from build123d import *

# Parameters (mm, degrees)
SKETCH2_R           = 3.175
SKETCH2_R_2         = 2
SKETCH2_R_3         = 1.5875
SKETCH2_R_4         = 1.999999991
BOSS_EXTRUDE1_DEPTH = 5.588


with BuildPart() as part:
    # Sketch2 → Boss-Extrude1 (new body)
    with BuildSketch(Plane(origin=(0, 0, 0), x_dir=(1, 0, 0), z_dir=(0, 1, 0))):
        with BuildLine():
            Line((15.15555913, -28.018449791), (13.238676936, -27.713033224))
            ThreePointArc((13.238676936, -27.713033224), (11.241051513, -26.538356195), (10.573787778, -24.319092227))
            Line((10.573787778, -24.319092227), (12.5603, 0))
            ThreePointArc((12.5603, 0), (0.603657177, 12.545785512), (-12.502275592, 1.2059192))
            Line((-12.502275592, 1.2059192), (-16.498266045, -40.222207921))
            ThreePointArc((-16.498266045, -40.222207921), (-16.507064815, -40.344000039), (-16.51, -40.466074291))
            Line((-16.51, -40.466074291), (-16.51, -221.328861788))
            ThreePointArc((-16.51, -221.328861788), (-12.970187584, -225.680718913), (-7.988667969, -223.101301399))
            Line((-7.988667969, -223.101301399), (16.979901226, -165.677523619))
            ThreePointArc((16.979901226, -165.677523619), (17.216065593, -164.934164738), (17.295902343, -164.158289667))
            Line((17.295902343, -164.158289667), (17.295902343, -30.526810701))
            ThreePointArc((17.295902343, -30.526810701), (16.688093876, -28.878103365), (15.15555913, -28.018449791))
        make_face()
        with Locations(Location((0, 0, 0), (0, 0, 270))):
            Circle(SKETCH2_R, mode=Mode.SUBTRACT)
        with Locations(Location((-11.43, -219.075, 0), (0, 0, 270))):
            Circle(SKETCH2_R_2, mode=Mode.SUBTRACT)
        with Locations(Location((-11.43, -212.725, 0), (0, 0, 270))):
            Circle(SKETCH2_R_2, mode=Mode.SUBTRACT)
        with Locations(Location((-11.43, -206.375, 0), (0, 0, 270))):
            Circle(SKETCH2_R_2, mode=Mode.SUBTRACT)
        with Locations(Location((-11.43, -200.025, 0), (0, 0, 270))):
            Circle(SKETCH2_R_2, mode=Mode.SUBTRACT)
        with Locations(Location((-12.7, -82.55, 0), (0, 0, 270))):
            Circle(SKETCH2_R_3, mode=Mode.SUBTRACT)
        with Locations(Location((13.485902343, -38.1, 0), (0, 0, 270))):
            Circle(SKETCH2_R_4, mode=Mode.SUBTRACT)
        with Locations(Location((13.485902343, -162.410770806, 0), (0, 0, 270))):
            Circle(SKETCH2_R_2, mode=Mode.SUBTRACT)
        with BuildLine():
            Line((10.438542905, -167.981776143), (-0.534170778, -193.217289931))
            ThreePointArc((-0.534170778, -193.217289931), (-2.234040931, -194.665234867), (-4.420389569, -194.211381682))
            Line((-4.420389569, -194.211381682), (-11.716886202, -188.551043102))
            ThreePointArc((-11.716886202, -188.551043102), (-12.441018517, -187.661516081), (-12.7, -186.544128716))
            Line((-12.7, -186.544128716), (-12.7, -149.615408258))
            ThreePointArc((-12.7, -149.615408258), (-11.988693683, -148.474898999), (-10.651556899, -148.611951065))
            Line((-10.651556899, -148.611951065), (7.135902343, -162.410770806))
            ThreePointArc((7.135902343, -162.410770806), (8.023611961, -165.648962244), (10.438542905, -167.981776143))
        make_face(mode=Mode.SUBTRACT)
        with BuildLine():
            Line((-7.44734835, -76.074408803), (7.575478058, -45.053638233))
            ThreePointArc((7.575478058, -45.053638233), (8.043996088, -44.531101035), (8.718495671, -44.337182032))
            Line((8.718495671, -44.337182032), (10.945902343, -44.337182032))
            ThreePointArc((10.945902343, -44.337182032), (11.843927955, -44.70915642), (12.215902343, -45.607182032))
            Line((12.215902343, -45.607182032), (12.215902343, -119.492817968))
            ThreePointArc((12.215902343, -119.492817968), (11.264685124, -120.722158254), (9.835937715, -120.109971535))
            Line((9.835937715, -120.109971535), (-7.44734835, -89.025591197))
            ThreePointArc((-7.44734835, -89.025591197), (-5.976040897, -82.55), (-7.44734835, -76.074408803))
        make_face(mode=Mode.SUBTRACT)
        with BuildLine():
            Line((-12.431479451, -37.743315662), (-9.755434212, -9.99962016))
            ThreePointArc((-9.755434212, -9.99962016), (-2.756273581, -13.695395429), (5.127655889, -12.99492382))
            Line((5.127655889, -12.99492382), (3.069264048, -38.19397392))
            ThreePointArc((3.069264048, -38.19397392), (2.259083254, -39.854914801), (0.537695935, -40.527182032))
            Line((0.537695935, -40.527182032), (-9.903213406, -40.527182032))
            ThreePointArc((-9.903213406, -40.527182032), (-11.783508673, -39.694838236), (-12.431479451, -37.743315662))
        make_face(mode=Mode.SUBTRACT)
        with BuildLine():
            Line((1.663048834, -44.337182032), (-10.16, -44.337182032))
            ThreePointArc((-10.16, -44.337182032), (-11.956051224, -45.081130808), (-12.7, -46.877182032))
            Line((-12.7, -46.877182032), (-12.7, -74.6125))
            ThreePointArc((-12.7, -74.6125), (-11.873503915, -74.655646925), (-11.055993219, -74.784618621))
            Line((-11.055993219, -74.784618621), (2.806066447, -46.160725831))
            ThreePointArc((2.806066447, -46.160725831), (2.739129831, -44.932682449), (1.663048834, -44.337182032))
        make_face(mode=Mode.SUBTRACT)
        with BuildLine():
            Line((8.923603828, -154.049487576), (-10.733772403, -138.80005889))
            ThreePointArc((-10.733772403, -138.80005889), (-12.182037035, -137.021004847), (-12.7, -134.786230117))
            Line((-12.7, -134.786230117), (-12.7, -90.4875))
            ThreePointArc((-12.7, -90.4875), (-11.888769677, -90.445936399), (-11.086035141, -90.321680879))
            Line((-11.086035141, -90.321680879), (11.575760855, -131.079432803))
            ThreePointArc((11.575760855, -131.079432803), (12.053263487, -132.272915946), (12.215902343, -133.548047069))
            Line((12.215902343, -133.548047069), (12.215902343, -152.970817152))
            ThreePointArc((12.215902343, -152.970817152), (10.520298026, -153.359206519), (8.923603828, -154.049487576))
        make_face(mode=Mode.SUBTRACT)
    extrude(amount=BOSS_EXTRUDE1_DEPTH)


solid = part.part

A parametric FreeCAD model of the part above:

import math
import FreeCAD as App
import Part
import Sketcher

V = App.Vector
Q = App.Units.Quantity

doc = App.newDocument("Part")
params = doc.addObject("Spreadsheet::Sheet", "Params")
for row, (alias, value) in enumerate([
    ("sketch1_radius", "0.1 in"),
    ("sketch1_radius2", "0.2 in"),
    ("sketch1_diameter", "0.25 in"),
    ("sketch1_radius3", "0.15 in"),
    ("sketch1_radius4", "0.25 in"),
    ("pad1_length", "0.22 in"),
], start=1):
    params.set(f"A{row}", alias)
    params.set(f"B{row}", "=" + value)
    params.setAlias(f"B{row}", alias)

body = doc.addObject("PartDesign::Body", "Body")

sketch1 = body.newObject("Sketcher::SketchObject", "Sketch")
sketch1.AttachmentSupport = (doc.getObject("XZ_Plane"), [""])
sketch1.MapMode = "FlatFace"
sketch1.addGeometry(Part.LineSegment(V(15.16, 28.02, 0), V(13.24, 27.71, 0)), False)
sketch1.addGeometry(Part.ArcOfCircle(Part.Circle(V(13.74, 24.58, 0), V(0, 0, 1), 3.18), math.radians(99), math.radians(185)), False)
sketch1.addGeometry(Part.LineSegment(V(10.57, 24.32, 0), V(12.56, 0, 0)), False)
sketch1.addGeometry(Part.ArcOfCircle(Part.Circle(V(0, 0, 0), V(0, 0, 1), 12.56), math.radians(-174), math.radians(0)), False)
sketch1.addGeometry(Part.LineSegment(V(-12.5, -1.21, 0), V(-16.5, 40.22, 0)), False)
sketch1.addGeometry(Part.ArcOfCircle(Part.Circle(V(-13.97, 40.47, 0), V(0, 0, 1), 2.54), math.radians(-180), math.radians(-174.49)), False)
sketch1.addGeometry(Part.LineSegment(V(-16.51, 40.47, 0), V(-16.51, 221.33, 0)), False)
sketch1.addGeometry(Part.ArcOfCircle(Part.Circle(V(-12.06, 221.33, 0), V(0, 0, 1), 4.45), math.radians(23), math.radians(180)), False)
sketch1.addGeometry(Part.LineSegment(V(-7.99, 223.1, 0), V(16.98, 165.68, 0)), False)
sketch1.addGeometry(Part.ArcOfCircle(Part.Circle(V(13.49, 164.16, 0), V(0, 0, 1), 3.81), math.radians(0), math.radians(24)), False)
sketch1.addGeometry(Part.LineSegment(V(17.3, 164.16, 0), V(17.3, 30.53, 0)), False)
sketch1.addGeometry(Part.ArcOfCircle(Part.Circle(V(14.76, 30.53, 0), V(0, 0, 1), 2.54), math.radians(-81), math.radians(0)), False)
sketch1.addGeometry(Part.Circle(V(-11.43, 219.07, 0), V(0, 0, 1), 2), False)
sketch1.addGeometry(Part.Circle(V(-11.43, 212.72, 0), V(0, 0, 1), 2), False)
sketch1.addGeometry(Part.Circle(V(-11.43, 206.38, 0), V(0, 0, 1), 2), False)
sketch1.addGeometry(Part.Circle(V(-11.43, 200.03, 0), V(0, 0, 1), 2), False)
sketch1.addGeometry(Part.ArcOfCircle(Part.Circle(V(13.49, 162.41, 0), V(0, 0, 1), 6.35), math.radians(119), math.radians(180)), False)
sketch1.addGeometry(Part.LineSegment(V(10.44, 167.98, 0), V(-0.53, 193.22, 0)), False)
sketch1.addGeometry(Part.ArcOfCircle(Part.Circle(V(-2.86, 192.2, 0), V(0, 0, 1), 2.54), math.radians(24), math.radians(128)), False)
sketch1.addGeometry(Part.LineSegment(V(-4.42, 194.21, 0), V(-11.72, 188.55, 0)), False)
sketch1.addGeometry(Part.ArcOfCircle(Part.Circle(V(-10.16, 186.54, 0), V(0, 0, 1), 2.54), math.radians(128), math.radians(180)), False)
sketch1.addGeometry(Part.LineSegment(V(-12.7, 186.54, 0), V(-12.7, 149.62, 0)), False)
sketch1.addGeometry(Part.ArcOfCircle(Part.Circle(V(-11.43, 149.62, 0), V(0, 0, 1), 1.27), math.radians(180), math.radians(308)), False)
sketch1.addGeometry(Part.LineSegment(V(-10.65, 148.61, 0), V(7.14, 162.41, 0)), False)
sketch1.addGeometry(Part.ArcOfCircle(Part.Circle(V(13.49, 162.41, 0), V(0, 0, 1), 9.52), math.radians(-119), math.radians(-98)), False)
sketch1.addGeometry(Part.LineSegment(V(8.92, 154.05, 0), V(-10.73, 138.8, 0)), False)
sketch1.addGeometry(Part.ArcOfCircle(Part.Circle(V(-7.62, 134.79, 0), V(0, 0, 1), 5.08), math.radians(128), math.radians(180)), False)
sketch1.addGeometry(Part.LineSegment(V(-12.7, 134.79, 0), V(-12.7, 90.49, 0)), False)
sketch1.addGeometry(Part.ArcOfCircle(Part.Circle(V(-12.7, 82.55, 0), V(0, 0, 1), 7.94), math.radians(78.27), math.radians(90)), False)
sketch1.addGeometry(Part.LineSegment(V(-11.09, 90.32, 0), V(11.58, 131.08, 0)), False)
sketch1.addGeometry(Part.ArcOfCircle(Part.Circle(V(7.14, 133.55, 0), V(0, 0, 1), 5.08), math.radians(-29), math.radians(0)), False)
sketch1.addGeometry(Part.LineSegment(V(12.22, 133.55, 0), V(12.22, 152.97, 0)), False)
sketch1.addGeometry(Part.Circle(V(13.49, 162.41, 0), V(0, 0, 1), 2), False)
sketch1.addGeometry(Part.Circle(V(-12.7, 82.55, 0), V(0, 0, 1), 1.59), False)
sketch1.addGeometry(Part.LineSegment(V(-10.16, 44.34, 0), V(1.66, 44.34, 0)), False)
sketch1.addGeometry(Part.ArcOfCircle(Part.Circle(V(1.66, 45.61, 0), V(0, 0, 1), 1.27), math.radians(-90), math.radians(26)), False)
sketch1.addGeometry(Part.LineSegment(V(2.81, 46.16, 0), V(-11.06, 74.78, 0)), False)
sketch1.addGeometry(Part.ArcOfCircle(Part.Circle(V(-12.7, 82.55, 0), V(0, 0, 1), 7.94), math.radians(-90), math.radians(-78.05)), False)
sketch1.addGeometry(Part.LineSegment(V(-12.7, 74.61, 0), V(-12.7, 46.88, 0)), False)
sketch1.addGeometry(Part.ArcOfCircle(Part.Circle(V(-10.16, 46.88, 0), V(0, 0, 1), 2.54), math.radians(-180), math.radians(-90)), False)
sketch1.addGeometry(Part.ArcOfCircle(Part.Circle(V(-9.9, 37.99, 0), V(0, 0, 1), 2.54), math.radians(90), math.radians(186)), False)
sketch1.addGeometry(Part.LineSegment(V(-12.43, 37.74, 0), V(-9.76, 10, 0)), False)
sketch1.addGeometry(Part.ArcOfCircle(Part.Circle(V(0, 0, 0), V(0, 0, 1), 13.97), math.radians(68), math.radians(134)), False)
sketch1.addGeometry(Part.LineSegment(V(5.13, 12.99, 0), V(3.07, 38.19, 0)), False)
sketch1.addGeometry(Part.ArcOfCircle(Part.Circle(V(0.54, 37.99, 0), V(0, 0, 1), 2.54), math.radians(5), math.radians(90)), False)
sketch1.addGeometry(Part.LineSegment(V(0.54, 40.53, 0), V(-9.9, 40.53, 0)), False)
sketch1.addGeometry(Part.Circle(V(0, 0, 0), V(0, 0, 1), 3.17), False)
sketch1.addGeometry(Part.ArcOfCircle(Part.Circle(V(-20.96, 82.55, 0), V(0, 0, 1), 14.99), math.radians(-26), math.radians(26)), False)
sketch1.addGeometry(Part.LineSegment(V(-7.45, 76.07, 0), V(7.58, 45.05, 0)), False)
sketch1.addGeometry(Part.ArcOfCircle(Part.Circle(V(8.72, 45.61, 0), V(0, 0, 1), 1.27), math.radians(-154), math.radians(-90)), False)
sketch1.addGeometry(Part.LineSegment(V(8.72, 44.34, 0), V(10.95, 44.34, 0)), False)
sketch1.addGeometry(Part.ArcOfCircle(Part.Circle(V(10.95, 45.61, 0), V(0, 0, 1), 1.27), math.radians(-90), math.radians(0)), False)
sketch1.addGeometry(Part.LineSegment(V(12.22, 45.61, 0), V(12.22, 119.49, 0)), False)
sketch1.addGeometry(Part.ArcOfCircle(Part.Circle(V(10.95, 119.49, 0), V(0, 0, 1), 1.27), math.radians(0), math.radians(151)), False)
sketch1.addGeometry(Part.LineSegment(V(9.84, 120.11, 0), V(-7.45, 89.03, 0)), False)
sketch1.addGeometry(Part.Circle(V(13.49, 38.1, 0), V(0, 0, 1), 2), False)
sketch1.addConstraint(Sketcher.Constraint("Tangent", 0, 2, 1, 1))
sketch1.addConstraint(Sketcher.Constraint("Tangent", 1, 2, 2, 1))
sketch1.addConstraint(Sketcher.Constraint("Coincident", 2, 2, 3, 2))
sketch1.addConstraint(Sketcher.Constraint("Tangent", 3, 1, 4, 1))
sketch1.addConstraint(Sketcher.Constraint("Tangent", 4, 2, 5, 2))
sketch1.addConstraint(Sketcher.Constraint("Tangent", 5, 1, 6, 1))
sketch1.addConstraint(Sketcher.Constraint("Tangent", 6, 2, 7, 2))
sketch1.addConstraint(Sketcher.Constraint("Tangent", 7, 1, 8, 1))
sketch1.addConstraint(Sketcher.Constraint("Tangent", 8, 2, 9, 2))
sketch1.addConstraint(Sketcher.Constraint("Tangent", 9, 1, 10, 1))
sketch1.addConstraint(Sketcher.Constraint("Tangent", 10, 2, 11, 2))
sketch1.addConstraint(Sketcher.Constraint("Tangent", 11, 1, 0, 1))
sketch1.addConstraint(Sketcher.Constraint("Coincident", 16, 1, 17, 1))
sketch1.addConstraint(Sketcher.Constraint("Tangent", 17, 2, 18, 1))
sketch1.addConstraint(Sketcher.Constraint("Tangent", 18, 2, 19, 1))
sketch1.addConstraint(Sketcher.Constraint("Tangent", 19, 2, 20, 1))
sketch1.addConstraint(Sketcher.Constraint("Tangent", 20, 2, 21, 1))
sketch1.addConstraint(Sketcher.Constraint("Tangent", 21, 2, 22, 1))
sketch1.addConstraint(Sketcher.Constraint("Tangent", 22, 2, 23, 1))
sketch1.addConstraint(Sketcher.Constraint("Coincident", 23, 2, 16, 2))
sketch1.addConstraint(Sketcher.Constraint("Coincident", 24, 1, 25, 1))
sketch1.addConstraint(Sketcher.Constraint("Tangent", 25, 2, 26, 1))
sketch1.addConstraint(Sketcher.Constraint("Tangent", 26, 2, 27, 1))
sketch1.addConstraint(Sketcher.Constraint("Coincident", 27, 2, 28, 2))
sketch1.addConstraint(Sketcher.Constraint("Coincident", 28, 1, 29, 1))
sketch1.addConstraint(Sketcher.Constraint("Tangent", 29, 2, 30, 1))
sketch1.addConstraint(Sketcher.Constraint("Tangent", 30, 2, 31, 1))
sketch1.addConstraint(Sketcher.Constraint("Coincident", 31, 2, 24, 2))
sketch1.addConstraint(Sketcher.Constraint("Tangent", 34, 2, 35, 1))
sketch1.addConstraint(Sketcher.Constraint("Tangent", 35, 2, 36, 1))
sketch1.addConstraint(Sketcher.Constraint("Coincident", 36, 2, 37, 2))
sketch1.addConstraint(Sketcher.Constraint("Coincident", 37, 1, 38, 1))
sketch1.addConstraint(Sketcher.Constraint("Tangent", 38, 2, 39, 1))
sketch1.addConstraint(Sketcher.Constraint("Tangent", 39, 2, 34, 1))
sketch1.addConstraint(Sketcher.Constraint("Tangent", 40, 2, 41, 1))
sketch1.addConstraint(Sketcher.Constraint("Coincident", 41, 2, 42, 2))
sketch1.addConstraint(Sketcher.Constraint("Coincident", 42, 1, 43, 1))
sketch1.addConstraint(Sketcher.Constraint("Tangent", 43, 2, 44, 1))
sketch1.addConstraint(Sketcher.Constraint("Tangent", 44, 2, 45, 1))
sketch1.addConstraint(Sketcher.Constraint("Tangent", 45, 2, 40, 1))
sketch1.addConstraint(Sketcher.Constraint("Coincident", 47, 1, 48, 1))
sketch1.addConstraint(Sketcher.Constraint("Tangent", 48, 2, 49, 1))
sketch1.addConstraint(Sketcher.Constraint("Tangent", 49, 2, 50, 1))
sketch1.addConstraint(Sketcher.Constraint("Tangent", 50, 2, 51, 1))
sketch1.addConstraint(Sketcher.Constraint("Tangent", 51, 2, 52, 1))
sketch1.addConstraint(Sketcher.Constraint("Tangent", 52, 2, 53, 1))
sketch1.addConstraint(Sketcher.Constraint("Tangent", 53, 2, 54, 1))
sketch1.addConstraint(Sketcher.Constraint("Coincident", 54, 2, 47, 2))
sketch1.addConstraint(Sketcher.Constraint("Vertical", 6))
sketch1.addConstraint(Sketcher.Constraint("Vertical", 10))
sketch1.addConstraint(Sketcher.Constraint("Vertical", 21))
sketch1.addConstraint(Sketcher.Constraint("Vertical", 27))
sketch1.addConstraint(Sketcher.Constraint("Vertical", 31))
sketch1.addConstraint(Sketcher.Constraint("Horizontal", 34))
sketch1.addConstraint(Sketcher.Constraint("Vertical", 38))
sketch1.addConstraint(Sketcher.Constraint("Horizontal", 45))
sketch1.addConstraint(Sketcher.Constraint("Horizontal", 50))
sketch1.addConstraint(Sketcher.Constraint("Vertical", 52))
sketch1.addConstraint(Sketcher.Constraint("Coincident", 3, 3, -1, 1))
sketch1.addConstraint(Sketcher.Constraint("Coincident", 42, 3, -1, 1))
sketch1.addConstraint(Sketcher.Constraint("Coincident", 46, 3, -1, 1))
sketch1.addConstraint(Sketcher.Constraint("Coincident", 24, 3, 16, 3))
sketch1.addConstraint(Sketcher.Constraint("Coincident", 32, 3, 16, 3))
sketch1.addConstraint(Sketcher.Constraint("Coincident", 33, 3, 28, 3))
sketch1.addConstraint(Sketcher.Constraint("Coincident", 37, 3, 28, 3))
sketch1.addConstraint(Sketcher.Constraint("Equal", 5, 11))
sketch1.addConstraint(Sketcher.Constraint("Equal", 12, 13))
sketch1.addConstraint(Sketcher.Constraint("Equal", 13, 14))
sketch1.addConstraint(Sketcher.Constraint("Equal", 14, 15))
sketch1.addConstraint(Sketcher.Constraint("Equal", 11, 18))
sketch1.addConstraint(Sketcher.Constraint("Equal", 18, 20))
sketch1.addConstraint(Sketcher.Constraint("Equal", 26, 30))
sketch1.addConstraint(Sketcher.Constraint("Equal", 15, 32))
sketch1.addConstraint(Sketcher.Constraint("Equal", 22, 35))
sketch1.addConstraint(Sketcher.Constraint("Equal", 28, 37))
sketch1.addConstraint(Sketcher.Constraint("Equal", 20, 39))
sketch1.addConstraint(Sketcher.Constraint("Equal", 39, 40))
sketch1.addConstraint(Sketcher.Constraint("Equal", 40, 44))
sketch1.addConstraint(Sketcher.Constraint("Equal", 1, 46))
sketch1.addConstraint(Sketcher.Constraint("Equal", 35, 49))
sketch1.addConstraint(Sketcher.Constraint("Equal", 49, 51))
sketch1.addConstraint(Sketcher.Constraint("Equal", 51, 53))
sketch1.addConstraint(Sketcher.Constraint("Equal", 32, 55))
sketch1.addConstraint(Sketcher.Constraint("PointOnObject", 2, 2, -1))
sketch1.addConstraint(Sketcher.Constraint("Parallel", 8, 17))
sketch1.addConstraint(Sketcher.Constraint("Parallel", 19, 23))
sketch1.addConstraint(Sketcher.Constraint("Parallel", 23, 25))
sketch1.addConstraint(Sketcher.Constraint("Parallel", 4, 41))
sketch1.addConstraint(Sketcher.Constraint("Parallel", 2, 43))
sketch1.addConstraint(Sketcher.Constraint("Parallel", 36, 48))
sketch1.addConstraint(Sketcher.Constraint("Parallel", 29, 54))
sketch1.addConstraint(Sketcher.Constraint("Horizontal", 37, 3, 47, 3))
sketch1.addConstraint(Sketcher.Constraint("Horizontal", 35, 3, 49, 3))
sketch1.addConstraint(Sketcher.Constraint("Horizontal", 32, 3, 23, 2))
sketch1.addConstraint(Sketcher.Constraint("Vertical", 12, 3, 13, 3))
sketch1.addConstraint(Sketcher.Constraint("Vertical", 13, 3, 14, 3))
sketch1.addConstraint(Sketcher.Constraint("Vertical", 14, 3, 15, 3))
sketch1.addConstraint(Sketcher.Constraint("Vertical", 9, 3, 16, 3))
sketch1.addConstraint(Sketcher.Constraint("Vertical", 15, 3, 22, 3))
sketch1.addConstraint(Sketcher.Constraint("Vertical", 20, 3, 39, 3))
sketch1.addConstraint(Sketcher.Constraint("Vertical", 32, 3, 55, 3))
sketch1.addConstraint(Sketcher.Constraint("Vertical", 37, 3, 20, 2))
sketch1.addConstraint(Sketcher.Constraint("Vertical", 30, 3, 23, 2))
sketch1.addConstraint(Sketcher.Constraint("Vertical", 21, 2, 26, 2))
sketch1.addConstraint(Sketcher.Constraint("Vertical", 31, 2, 51, 2))
sketch1.addConstraint(Sketcher.Constraint("Vertical", 47, 1, 54, 2))
sketch1.addConstraint(Sketcher.Constraint("Radius", 5, Q("0.1 in")))
sketch1.addConstraint(Sketcher.Constraint("Radius", 26, Q("0.2 in")))
sketch1.addConstraint(Sketcher.Constraint("Diameter", 46, Q("0.25 in")))
sketch1.addConstraint(Sketcher.Constraint("Radius", 9, Q("0.15 in")))
sketch1.addConstraint(Sketcher.Constraint("Radius", 16, Q("0.25 in")))
sketch1.addConstraint(Sketcher.Constraint("Radius", 22, Q("0.05 in")))
sketch1.addConstraint(Sketcher.Constraint("Radius", 42, Q("0.55 in")))
sketch1.addConstraint(Sketcher.Constraint("Radius", 47, Q("0.59 in")))
sketch1.addConstraint(Sketcher.Constraint("Diameter", 33, Q("0.125 in")))
sketch1.addConstraint(Sketcher.Constraint("Radius", 7, Q("0.175 in")))
sketch1.addConstraint(Sketcher.Constraint("Radius", 24, Q("0.375 in")))
sketch1.addConstraint(Sketcher.Constraint("Radius", 28, Q("0.3125 in")))
sketch1.addConstraint(Sketcher.Constraint("DistanceX", 20, 3, -1, 1, Q("0.4 in")))
sketch1.addConstraint(Sketcher.Constraint("DistanceY", -1, 1, 55, 3, Q("1.5 in")))
sketch1.addConstraint(Sketcher.Constraint("Angle", 8, Q("-66.5 deg")))
sketch1.addConstraint(Sketcher.Constraint("Radius", 3, Q("0.4945 in")))
sketch1.addConstraint(Sketcher.Constraint("Diameter", 12, Q("4 mm")))
sketch1.addConstraint(Sketcher.Constraint("DistanceX", 5, 3, -1, 1, Q("0.55 in")))
sketch1.addConstraint(Sketcher.Constraint("DistanceY", -1, 1, 28, 3, Q("3.25 in")))
sketch1.addConstraint(Sketcher.Constraint("DistanceY", -1, 1, 12, 3, Q("8.625 in")))
sketch1.addConstraint(Sketcher.Constraint("DistanceY", -1, 1, 13, 3, Q("8.375 in")))
sketch1.addConstraint(Sketcher.Constraint("DistanceY", -1, 1, 14, 3, Q("8.125 in")))
sketch1.addConstraint(Sketcher.Constraint("DistanceY", -1, 1, 15, 3, Q("7.875 in")))
sketch1.addConstraint(Sketcher.Constraint("DistanceX", -1, 1, 8, 2, Q("0.6685 in")))
sketch1.addConstraint(Sketcher.Constraint("Distance", 4, Q("41.6204 mm")))
sketch1.addConstraint(Sketcher.Constraint("DistanceX", 34, 1, 34, 2, Q("11.823049 mm")))
sketch1.addConstraint(Sketcher.Constraint("DistanceX", 45, 2, 45, 1, Q("10.440909 mm")))
sketch1.addConstraint(Sketcher.Constraint("DistanceY", 10, 2, 10, 1, Q("133.631479 mm")))
sketch1.addConstraint(Sketcher.Constraint("DistanceY", 21, 2, 21, 1, Q("36.92872 mm")))
sketch1.addConstraint(Sketcher.Constraint("DistanceY", 27, 2, 27, 1, Q("44.29873 mm")))
sketch1.addConstraint(Sketcher.Constraint("DistanceY", 31, 1, 31, 2, Q("19.42277 mm")))
sketch1.addConstraint(Sketcher.Constraint("DistanceY", -1, 1, 7, 1, Q("223.101301 mm")))
sketch1.addConstraint(Sketcher.Constraint("Distance", 0, Q("1.941061 mm")))
sketch1.addConstraint(Sketcher.Constraint("Distance", 2, Q("24.400092 mm")))
sketch1.addConstraint(Sketcher.Constraint("Distance", 17, Q("27.517842 mm")))
sketch1.addConstraint(Sketcher.Constraint("Distance", 29, Q("46.634229 mm")))
sketch1.addConstraint(Sketcher.Constraint("Distance", 43, Q("25.28298 mm")))
sketch1.addConstraint(Sketcher.Constraint("Distance", 48, Q("34.466992 mm")))
sketch1.addConstraint(Sketcher.Constraint("DistanceX", 50, 1, 50, 2, Q("2.227407 mm")))
sketch1.addConstraint(Sketcher.Constraint("DistanceY", 38, 2, 38, 1, Q("27.735318 mm")))
sketch1.addConstraint(Sketcher.Constraint("DistanceY", 52, 1, 52, 2, Q("73.885636 mm")))
sketch1.addConstraint(Sketcher.Constraint("DistanceY", -1, 1, 16, 3, Q("162.410771 mm")))
sketch1.addConstraint(Sketcher.Constraint("DistanceY", -1, 1, 20, 3, Q("186.544129 mm")))
sketch1.addConstraint(Sketcher.Constraint("DistanceX", 40, 2, -1, 1, Q("12.431479 mm")))
sketch1.setExpression("Constraints[106]", "Params.sketch1_radius")
sketch1.setExpression("Constraints[107]", "Params.sketch1_radius2")
sketch1.setExpression("Constraints[108]", "Params.sketch1_diameter")
sketch1.setExpression("Constraints[109]", "Params.sketch1_radius3")
sketch1.setExpression("Constraints[110]", "Params.sketch1_radius4")
pad1 = body.newObject("PartDesign::Pad", "Pad")
pad1.Profile = sketch1
pad1.setExpression("Length", "Params.pad1_length")
pad1.Reversed = True

doc.recompute()
